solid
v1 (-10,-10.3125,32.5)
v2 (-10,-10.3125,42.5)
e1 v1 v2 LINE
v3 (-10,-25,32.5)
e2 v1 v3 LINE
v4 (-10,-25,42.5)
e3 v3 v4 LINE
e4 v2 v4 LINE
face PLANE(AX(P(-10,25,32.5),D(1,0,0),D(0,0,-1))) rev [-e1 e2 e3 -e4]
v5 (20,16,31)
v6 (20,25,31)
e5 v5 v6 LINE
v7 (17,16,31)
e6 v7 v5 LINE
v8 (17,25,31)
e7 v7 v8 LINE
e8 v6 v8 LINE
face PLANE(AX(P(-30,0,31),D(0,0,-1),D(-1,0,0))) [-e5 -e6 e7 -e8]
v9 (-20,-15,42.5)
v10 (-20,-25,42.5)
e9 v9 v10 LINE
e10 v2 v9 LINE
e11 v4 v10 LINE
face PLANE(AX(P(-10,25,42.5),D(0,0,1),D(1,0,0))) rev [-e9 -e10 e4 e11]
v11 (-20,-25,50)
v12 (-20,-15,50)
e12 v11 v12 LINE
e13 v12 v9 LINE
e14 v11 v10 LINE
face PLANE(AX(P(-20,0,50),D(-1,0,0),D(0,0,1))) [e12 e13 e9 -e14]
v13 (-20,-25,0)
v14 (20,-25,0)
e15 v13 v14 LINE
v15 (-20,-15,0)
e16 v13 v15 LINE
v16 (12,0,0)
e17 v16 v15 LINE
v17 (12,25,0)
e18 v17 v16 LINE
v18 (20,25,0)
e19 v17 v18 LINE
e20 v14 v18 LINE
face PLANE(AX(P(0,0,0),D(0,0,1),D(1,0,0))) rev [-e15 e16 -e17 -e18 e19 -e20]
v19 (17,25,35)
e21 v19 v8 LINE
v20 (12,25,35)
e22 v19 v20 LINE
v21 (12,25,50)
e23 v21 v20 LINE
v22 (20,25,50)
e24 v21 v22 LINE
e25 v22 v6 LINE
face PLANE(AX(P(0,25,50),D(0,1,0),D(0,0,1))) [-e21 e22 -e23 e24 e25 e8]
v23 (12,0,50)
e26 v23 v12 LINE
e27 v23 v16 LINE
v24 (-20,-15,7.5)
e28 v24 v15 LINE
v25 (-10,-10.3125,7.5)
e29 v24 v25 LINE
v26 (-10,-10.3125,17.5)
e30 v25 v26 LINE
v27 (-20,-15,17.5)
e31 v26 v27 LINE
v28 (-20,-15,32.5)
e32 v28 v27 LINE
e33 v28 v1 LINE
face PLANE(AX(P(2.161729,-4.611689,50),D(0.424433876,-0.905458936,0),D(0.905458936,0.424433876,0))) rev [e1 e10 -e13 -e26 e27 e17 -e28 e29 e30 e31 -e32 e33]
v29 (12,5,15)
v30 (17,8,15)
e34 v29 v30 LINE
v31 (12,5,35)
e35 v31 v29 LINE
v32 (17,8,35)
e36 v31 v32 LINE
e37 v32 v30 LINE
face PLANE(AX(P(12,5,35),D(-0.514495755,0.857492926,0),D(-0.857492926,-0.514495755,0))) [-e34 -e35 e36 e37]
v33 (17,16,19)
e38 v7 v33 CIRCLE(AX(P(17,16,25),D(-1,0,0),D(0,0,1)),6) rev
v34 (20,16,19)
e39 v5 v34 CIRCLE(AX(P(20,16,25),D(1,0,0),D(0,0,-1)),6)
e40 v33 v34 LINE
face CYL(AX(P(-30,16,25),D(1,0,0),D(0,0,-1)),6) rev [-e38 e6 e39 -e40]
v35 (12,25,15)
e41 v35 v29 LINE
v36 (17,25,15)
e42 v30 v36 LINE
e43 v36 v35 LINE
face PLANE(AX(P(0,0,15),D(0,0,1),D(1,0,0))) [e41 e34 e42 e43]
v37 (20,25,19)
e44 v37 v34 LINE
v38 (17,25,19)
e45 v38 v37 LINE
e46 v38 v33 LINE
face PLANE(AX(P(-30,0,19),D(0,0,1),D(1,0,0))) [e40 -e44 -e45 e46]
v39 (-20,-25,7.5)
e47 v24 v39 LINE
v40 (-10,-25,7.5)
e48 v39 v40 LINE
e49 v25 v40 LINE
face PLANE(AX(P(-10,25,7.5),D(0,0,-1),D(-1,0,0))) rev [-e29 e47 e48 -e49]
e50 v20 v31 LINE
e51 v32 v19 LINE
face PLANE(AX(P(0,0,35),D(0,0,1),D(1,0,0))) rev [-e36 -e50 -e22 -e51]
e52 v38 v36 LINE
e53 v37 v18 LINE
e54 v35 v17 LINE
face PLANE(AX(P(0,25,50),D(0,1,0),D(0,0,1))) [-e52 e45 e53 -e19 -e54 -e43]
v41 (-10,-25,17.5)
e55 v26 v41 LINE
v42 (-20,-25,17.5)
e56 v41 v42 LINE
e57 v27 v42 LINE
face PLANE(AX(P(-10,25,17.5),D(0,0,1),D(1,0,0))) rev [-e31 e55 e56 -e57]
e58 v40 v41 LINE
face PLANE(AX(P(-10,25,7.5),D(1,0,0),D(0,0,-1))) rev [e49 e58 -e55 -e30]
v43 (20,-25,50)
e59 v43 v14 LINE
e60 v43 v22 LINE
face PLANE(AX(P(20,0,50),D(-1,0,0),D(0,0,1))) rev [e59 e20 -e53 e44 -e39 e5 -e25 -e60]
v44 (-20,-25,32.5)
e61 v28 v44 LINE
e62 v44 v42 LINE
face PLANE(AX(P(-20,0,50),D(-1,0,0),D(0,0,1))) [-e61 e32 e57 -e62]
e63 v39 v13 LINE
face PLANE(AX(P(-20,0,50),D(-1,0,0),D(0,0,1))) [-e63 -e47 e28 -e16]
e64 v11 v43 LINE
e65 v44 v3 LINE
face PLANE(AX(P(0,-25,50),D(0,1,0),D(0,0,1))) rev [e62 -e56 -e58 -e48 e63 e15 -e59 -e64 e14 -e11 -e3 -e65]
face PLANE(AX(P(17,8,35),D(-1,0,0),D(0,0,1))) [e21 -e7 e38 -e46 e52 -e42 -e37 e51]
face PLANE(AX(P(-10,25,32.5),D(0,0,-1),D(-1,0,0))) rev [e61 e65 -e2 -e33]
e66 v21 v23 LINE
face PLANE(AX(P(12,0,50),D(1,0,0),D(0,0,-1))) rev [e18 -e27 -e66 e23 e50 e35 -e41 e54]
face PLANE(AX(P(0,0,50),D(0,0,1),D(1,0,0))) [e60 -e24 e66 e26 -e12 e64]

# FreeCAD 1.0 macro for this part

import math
import FreeCAD as App
import Part
import Sketcher

doc = App.newDocument("Part")
body = doc.addObject("PartDesign::Body", "Body")

sketch1 = body.newObject("Sketcher::SketchObject", "Sketch")
sketch1.AttachmentSupport = (doc.getObject("XY_Plane"), [""])
sketch1.MapMode = "FlatFace"
sketch1.addGeometry([
    Part.LineSegment(App.Vector(20, 25, 0), App.Vector(12, 25, 0)),
    Part.LineSegment(App.Vector(12, 25, 0), App.Vector(12, 0, 0)),
    Part.LineSegment(App.Vector(12, 0, 0), App.Vector(-20, -15, 0)),
    Part.LineSegment(App.Vector(-20, -15, 0), App.Vector(-20, -25, 0)),
    Part.LineSegment(App.Vector(-20, -25, 0), App.Vector(20, -25, 0)),
    Part.LineSegment(App.Vector(20, -25, 0), App.Vector(20, 25, 0)),
], False)
sketch1.addConstraint([
    Sketcher.Constraint("Coincident", 0, 2, 1, 1),
    Sketcher.Constraint("Coincident", 1, 2, 2, 1),
    Sketcher.Constraint("Coincident", 2, 2, 3, 1),
    Sketcher.Constraint("Coincident", 3, 2, 4, 1),
    Sketcher.Constraint("Coincident", 4, 2, 5, 1),
    Sketcher.Constraint("Coincident", 5, 2, 0, 1),
    Sketcher.Constraint("Horizontal", 0),
    Sketcher.Constraint("Vertical", 1),
    Sketcher.Constraint("Vertical", 3),
    Sketcher.Constraint("Horizontal", 4),
    Sketcher.Constraint("Vertical", 5),
    Sketcher.Constraint("Symmetric", 3, 2, 5, 2, -1, 1),
    Sketcher.Constraint("PointOnObject", 1, 2, -1),
    Sketcher.Constraint("DistanceX", 0, 2, 0, 1, 8.0),
    Sketcher.Constraint("DistanceX", 4, 1, 4, 2, 40.0),
    Sketcher.Constraint("DistanceY", 1, 2, 1, 1, 25.0),
    Sketcher.Constraint("DistanceY", 3, 2, 3, 1, 10.0),
])
pad1 = body.newObject("PartDesign::Pad", "Pad")
pad1.Profile = sketch1
pad1.Length = 50

sketch2 = body.newObject("Sketcher::SketchObject", "Sketch001")
sketch2.AttachmentSupport = (doc.getObject("XZ_Plane"), [""])
sketch2.MapMode = "FlatFace"
sketch2.AttachmentOffset = App.Placement(App.Vector(0, 0, 25), App.Rotation())
sketch2.addGeometry([
    Part.LineSegment(App.Vector(-20, 17.5, 0), App.Vector(-20, 7.5, 0)),
    Part.LineSegment(App.Vector(-20, 7.5, 0), App.Vector(-10, 7.5, 0)),
    Part.LineSegment(App.Vector(-10, 7.5, 0), App.Vector(-10, 17.5, 0)),
    Part.LineSegment(App.Vector(-10, 17.5, 0), App.Vector(-20, 17.5, 0)),
    Part.LineSegment(App.Vector(-20, 42.5, 0), App.Vector(-20, 32.5, 0)),
    Part.LineSegment(App.Vector(-20, 32.5, 0), App.Vector(-10, 32.5, 0)),
    Part.LineSegment(App.Vector(-10, 32.5, 0), App.Vector(-10, 42.5, 0)),
    Part.LineSegment(App.Vector(-10, 42.5, 0), App.Vector(-20, 42.5, 0)),
], False)
sketch2.addConstraint([
    Sketcher.Constraint("Coincident", 0, 2, 1, 1),
    Sketcher.Constraint("Coincident", 1, 2, 2, 1),
    Sketcher.Constraint("Coincident", 2, 2, 3, 1),
    Sketcher.Constraint("Coincident", 3, 2, 0, 1),
    Sketcher.Constraint("Coincident", 4, 2, 5, 1),
    Sketcher.Constraint("Coincident", 5, 2, 6, 1),
    Sketcher.Constraint("Coincident", 6, 2, 7, 1),
    Sketcher.Constraint("Coincident", 7, 2, 4, 1),
    Sketcher.Constraint("Vertical", 0),
    Sketcher.Constraint("Horizontal", 1),
    Sketcher.Constraint("Vertical", 2),
    Sketcher.Constraint("Horizontal", 3),
    Sketcher.Constraint("Vertical", 4),
    Sketcher.Constraint("Horizontal", 5),
    Sketcher.Constraint("Vertical", 6),
    Sketcher.Constraint("Horizontal", 7),
    Sketcher.Constraint("Vertical", 3, 2, 4, 2),
    Sketcher.Constraint("Vertical", 2, 2, 5, 2),
    Sketcher.Constraint("Equal", 7, 0),
    Sketcher.Constraint("Equal", 2, 4),
    Sketcher.Constraint("DistanceX", 1, 1, 1, 2, 10.0),
    Sketcher.Constraint("DistanceX", 0, 2, -1, 1, 20.0),
    Sketcher.Constraint("DistanceY", 3, 2, 4, 2, 15.0),
    Sketcher.Constraint("DistanceY", -1, 1, 0, 2, 7.5),
])
pocket1 = body.newObject("PartDesign::Pocket", "Pocket")
pocket1.Profile = sketch2
pocket1.Type = "ThroughAll"

sketch3 = body.newObject("Sketcher::SketchObject", "Sketch002")
sketch3.AttachmentSupport = (doc.getObject("YZ_Plane"), [""])
sketch3.MapMode = "FlatFace"
sketch3.AttachmentOffset = App.Placement(App.Vector(0, 0, 20), App.Rotation())
sketch3.addGeometry([
    Part.ArcOfCircle(Part.Circle(App.Vector(16, 25, 0), App.Vector(0, 0, 1), 6), math.radians(180), math.radians(270)),
    Part.LineSegment(App.Vector(16, 19, 0), App.Vector(25, 19, 0)),
    Part.LineSegment(App.Vector(25, 19, 0), App.Vector(25, 31, 0)),
    Part.LineSegment(App.Vector(25, 31, 0), App.Vector(16, 31, 0)),
    Part.ArcOfCircle(Part.Circle(App.Vector(16, 25, 0), App.Vector(0, 0, 1), 6), math.radians(90), math.radians(180)),
], False)
sketch3.addConstraint([
    Sketcher.Constraint("Tangent", 0, 2, 1, 1),
    Sketcher.Constraint("Coincident", 1, 2, 2, 1),
    Sketcher.Constraint("Coincident", 2, 2, 3, 1),
    Sketcher.Constraint("Tangent", 3, 2, 4, 1),
    Sketcher.Constraint("Tangent", 4, 2, 0, 1),
    Sketcher.Constraint("Horizontal", 1),
    Sketcher.Constraint("Vertical", 2),
    Sketcher.Constraint("Horizontal", 3),
    Sketcher.Constraint("Equal", 0, 4),
    Sketcher.Constraint("Horizontal", 0, 3, 4, 2),
    Sketcher.Constraint("Radius", 0, 6.0),
    Sketcher.Constraint("DistanceX", 1, 1, 1, 2, 9.0),
    Sketcher.Constraint("DistanceX", -1, 1, 0, 3, 16.0),
    Sketcher.Constraint("DistanceY", -1, 1, 0, 3, 25.0),
])
pocket2 = body.newObject("PartDesign::Pocket", "Pocket001")
pocket2.Profile = sketch3
pocket2.Length = 50

sketch4 = body.newObject("Sketcher::SketchObject", "Sketch003")
sketch4.AttachmentSupport = (doc.getObject("XY_Plane"), [""])
sketch4.MapMode = "FlatFace"
sketch4.AttachmentOffset = App.Placement(App.Vector(0, 0, 25), App.Rotation())
sketch4.addGeometry([
    Part.LineSegment(App.Vector(12, 25, 0), App.Vector(12, 5, 0)),
    Part.LineSegment(App.Vector(12, 5, 0), App.Vector(17, 8, 0)),
    Part.LineSegment(App.Vector(17, 8, 0), App.Vector(17, 25, 0)),
    Part.LineSegment(App.Vector(17, 25, 0), App.Vector(12, 25, 0)),
], False)
sketch4.addConstraint([
    Sketcher.Constraint("Coincident", 0, 2, 1, 1),
    Sketcher.Constraint("Coincident", 1, 2, 2, 1),
    Sketcher.Constraint("Coincident", 2, 2, 3, 1),
    Sketcher.Constraint("Coincident", 3, 2, 0, 1),
    Sketcher.Constraint("Vertical", 0),
    Sketcher.Constraint("Vertical", 2),
    Sketcher.Constraint("Horizontal", 3),
    Sketcher.Constraint("DistanceX", 3, 2, 3, 1, 5.0),
    Sketcher.Constraint("DistanceY", 0, 2, 0, 1, 20.0),
    Sketcher.Constraint("DistanceY", 2, 1, 2, 2, 17.0),
    Sketcher.Constraint("DistanceX", -1, 1, 0, 2, 12.0),
    Sketcher.Constraint("DistanceY", -1, 1, 0, 2, 5.0),
])
pocket3 = body.newObject("PartDesign::Pocket", "Pocket002")
pocket3.Profile = sketch4
pocket3.Type = "TwoLengths"
pocket3.Length = 10
pocket3.Length2 = 10
pocket3.Reversed = True

doc.recompute()
